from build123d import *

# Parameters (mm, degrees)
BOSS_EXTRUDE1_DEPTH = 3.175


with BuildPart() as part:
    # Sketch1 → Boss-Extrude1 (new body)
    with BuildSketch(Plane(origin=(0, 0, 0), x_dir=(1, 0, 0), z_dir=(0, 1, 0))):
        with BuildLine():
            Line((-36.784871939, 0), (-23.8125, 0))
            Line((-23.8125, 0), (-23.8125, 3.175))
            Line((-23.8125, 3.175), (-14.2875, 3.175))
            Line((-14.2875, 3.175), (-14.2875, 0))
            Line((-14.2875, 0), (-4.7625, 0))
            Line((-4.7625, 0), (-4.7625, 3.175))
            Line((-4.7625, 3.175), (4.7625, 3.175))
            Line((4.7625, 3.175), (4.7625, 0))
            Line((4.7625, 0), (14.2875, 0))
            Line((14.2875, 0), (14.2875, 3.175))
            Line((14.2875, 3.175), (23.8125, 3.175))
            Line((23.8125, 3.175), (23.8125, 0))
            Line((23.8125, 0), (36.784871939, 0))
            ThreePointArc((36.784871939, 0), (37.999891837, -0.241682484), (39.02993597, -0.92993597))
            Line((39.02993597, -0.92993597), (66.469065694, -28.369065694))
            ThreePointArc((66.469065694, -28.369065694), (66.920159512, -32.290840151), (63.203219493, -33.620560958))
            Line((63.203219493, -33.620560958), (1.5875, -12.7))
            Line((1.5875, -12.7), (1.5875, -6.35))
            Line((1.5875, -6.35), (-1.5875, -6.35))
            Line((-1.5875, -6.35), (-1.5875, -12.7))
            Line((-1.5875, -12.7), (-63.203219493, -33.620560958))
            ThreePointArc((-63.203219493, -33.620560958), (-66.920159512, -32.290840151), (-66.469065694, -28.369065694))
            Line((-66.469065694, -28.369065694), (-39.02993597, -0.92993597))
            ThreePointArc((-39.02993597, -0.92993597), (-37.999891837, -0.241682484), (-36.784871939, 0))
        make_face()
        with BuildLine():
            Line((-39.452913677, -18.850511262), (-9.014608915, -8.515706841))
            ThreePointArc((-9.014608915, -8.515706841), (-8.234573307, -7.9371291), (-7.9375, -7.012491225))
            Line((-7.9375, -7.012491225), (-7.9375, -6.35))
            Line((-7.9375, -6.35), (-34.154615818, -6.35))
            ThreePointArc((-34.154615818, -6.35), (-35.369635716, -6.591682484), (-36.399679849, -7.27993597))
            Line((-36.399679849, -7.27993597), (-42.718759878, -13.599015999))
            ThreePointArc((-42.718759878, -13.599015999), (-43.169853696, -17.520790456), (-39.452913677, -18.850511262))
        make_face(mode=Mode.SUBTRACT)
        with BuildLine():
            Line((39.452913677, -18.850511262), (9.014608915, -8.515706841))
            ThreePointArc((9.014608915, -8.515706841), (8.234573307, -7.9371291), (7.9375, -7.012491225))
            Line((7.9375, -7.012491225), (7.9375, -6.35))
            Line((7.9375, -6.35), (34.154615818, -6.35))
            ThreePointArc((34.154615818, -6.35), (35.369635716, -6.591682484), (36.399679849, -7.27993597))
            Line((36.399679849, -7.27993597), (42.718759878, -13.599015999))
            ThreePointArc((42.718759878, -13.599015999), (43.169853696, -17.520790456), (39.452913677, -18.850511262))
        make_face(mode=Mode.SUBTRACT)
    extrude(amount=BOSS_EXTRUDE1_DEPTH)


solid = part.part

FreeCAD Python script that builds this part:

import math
import FreeCAD as App
import Part
import Sketcher
Q = App.Units.Quantity

doc = App.newDocument("Part")
body = doc.addObject("PartDesign::Body", "Body")

# Sketch on XZ plane
sketch1 = doc.addObject("Sketcher::SketchObject", "Sketch")
body.addObject(sketch1)
sketch1.AttachmentSupport = (doc.XZ_Plane, [""])
sketch1.MapMode = "FlatFace"
sketch1.addGeometry([
    Part.LineSegment(App.Vector(-23.8, 0, 0), App.Vector(-36.8, 0, 0)),  # 0
    Part.ArcOfCircle(Part.Circle(App.Vector(-36.8, 3.2, 0), App.Vector(0, 0, 1), 3.2), math.radians(-135), math.radians(-90)),  # 1
    Part.LineSegment(App.Vector(-39, 0.9, 0), App.Vector(-66.5, 28.4, 0)),  # 2
    Part.ArcOfCircle(Part.Circle(App.Vector(-64.2, 30.6, 0), App.Vector(0, 0, 1), 3.2), math.radians(71), math.radians(225)),  # 3
    Part.LineSegment(App.Vector(-63.2, 33.6, 0), App.Vector(-1.6, 12.7, 0)),  # 4
    Part.LineSegment(App.Vector(-1.6, 12.7, 0), App.Vector(-1.6, 6.3, 0)),  # 5
    Part.LineSegment(App.Vector(-1.6, 6.3, 0), App.Vector(1.6, 6.3, 0)),  # 6
    Part.LineSegment(App.Vector(1.6, 6.3, 0), App.Vector(1.6, 12.7, 0)),  # 7
    Part.LineSegment(App.Vector(1.6, 12.7, 0), App.Vector(63.2, 33.6, 0)),  # 8
    Part.ArcOfCircle(Part.Circle(App.Vector(64.2, 30.6, 0), App.Vector(0, 0, 1), 3.2), math.radians(-45), math.radians(109)),  # 9
    Part.LineSegment(App.Vector(66.5, 28.4, 0), App.Vector(39, 0.9, 0)),  # 10
    Part.ArcOfCircle(Part.Circle(App.Vector(36.8, 3.2, 0), App.Vector(0, 0, 1), 3.2), math.radians(-90), math.radians(-45)),  # 11
    Part.LineSegment(App.Vector(36.8, 0, 0), App.Vector(23.8, 0, 0)),  # 12
    Part.LineSegment(App.Vector(23.8, 0, 0), App.Vector(23.8, -3.2, 0)),  # 13
    Part.LineSegment(App.Vector(23.8, -3.2, 0), App.Vector(14.3, -3.2, 0)),  # 14
    Part.LineSegment(App.Vector(14.3, -3.2, 0), App.Vector(14.3, 0, 0)),  # 15
    Part.LineSegment(App.Vector(14.3, 0, 0), App.Vector(4.8, 0, 0)),  # 16
    Part.LineSegment(App.Vector(4.8, 0, 0), App.Vector(4.8, -3.2, 0)),  # 17
    Part.LineSegment(App.Vector(4.8, -3.2, 0), App.Vector(-4.8, -3.2, 0)),  # 18
    Part.LineSegment(App.Vector(-4.8, -3.2, 0), App.Vector(-4.8, 0, 0)),  # 19
    Part.LineSegment(App.Vector(-4.8, 0, 0), App.Vector(-14.3, 0, 0)),  # 20
    Part.LineSegment(App.Vector(-14.3, 0, 0), App.Vector(-14.3, -3.2, 0)),  # 21
    Part.LineSegment(App.Vector(-14.3, -3.2, 0), App.Vector(-23.8, -3.2, 0)),  # 22
    Part.LineSegment(App.Vector(-23.8, -3.2, 0), App.Vector(-23.8, 0, 0)),  # 23
    Part.LineSegment(App.Vector(39.5, 18.9, 0), App.Vector(9, 8.5, 0)),  # 24
    Part.ArcOfCircle(Part.Circle(App.Vector(9.5, 7, 0), App.Vector(0, 0, 1), 1.6), math.radians(109), math.radians(180)),  # 25
    Part.LineSegment(App.Vector(7.9, 7, 0), App.Vector(7.9, 6.3, 0)),  # 26
    Part.LineSegment(App.Vector(7.9, 6.3, 0), App.Vector(34.2, 6.3, 0)),  # 27
    Part.ArcOfCircle(Part.Circle(App.Vector(34.2, 9.5, 0), App.Vector(0, 0, 1), 3.2), math.radians(-90), math.radians(-45)),  # 28
    Part.LineSegment(App.Vector(36.4, 7.3, 0), App.Vector(42.7, 13.6, 0)),  # 29
    Part.ArcOfCircle(Part.Circle(App.Vector(40.5, 15.8, 0), App.Vector(0, 0, 1), 3.2), math.radians(-45), math.radians(109)),  # 30
    Part.ArcOfCircle(Part.Circle(App.Vector(-40.5, 15.8, 0), App.Vector(0, 0, 1), 3.2), math.radians(71), math.radians(225)),  # 31
    Part.LineSegment(App.Vector(-42.7, 13.6, 0), App.Vector(-36.4, 7.3, 0)),  # 32
    Part.ArcOfCircle(Part.Circle(App.Vector(-34.2, 9.5, 0), App.Vector(0, 0, 1), 3.2), math.radians(-135), math.radians(-90)),  # 33
    Part.LineSegment(App.Vector(-34.2, 6.3, 0), App.Vector(-7.9, 6.3, 0)),  # 34
    Part.LineSegment(App.Vector(-7.9, 6.3, 0), App.Vector(-7.9, 7, 0)),  # 35
    Part.ArcOfCircle(Part.Circle(App.Vector(-9.5, 7, 0), App.Vector(0, 0, 1), 1.6), math.radians(0), math.radians(71)),  # 36
    Part.LineSegment(App.Vector(-9, 8.5, 0), App.Vector(-39.5, 18.9, 0)),  # 37
], False)
sketch1.addConstraint([
    Sketcher.Constraint("Tangent", 0, 2, 1, 2),
    Sketcher.Constraint("Tangent", 1, 1, 2, 1),
    Sketcher.Constraint("Tangent", 2, 2, 3, 2),
    Sketcher.Constraint("Tangent", 3, 1, 4, 1),
    Sketcher.Constraint("Coincident", 4, 2, 5, 1),
    Sketcher.Constraint("Coincident", 5, 2, 6, 1),
    Sketcher.Constraint("Coincident", 6, 2, 7, 1),
    Sketcher.Constraint("Coincident", 7, 2, 8, 1),
    Sketcher.Constraint("Tangent", 8, 2, 9, 2),
    Sketcher.Constraint("Tangent", 9, 1, 10, 1),
    Sketcher.Constraint("Tangent", 10, 2, 11, 2),
    Sketcher.Constraint("Tangent", 11, 1, 12, 1),
    Sketcher.Constraint("Coincident", 12, 2, 13, 1),
    Sketcher.Constraint("Coincident", 13, 2, 14, 1),
    Sketcher.Constraint("Coincident", 14, 2, 15, 1),
    Sketcher.Constraint("Coincident", 15, 2, 16, 1),
    Sketcher.Constraint("Coincident", 16, 2, 17, 1),
    Sketcher.Constraint("Coincident", 17, 2, 18, 1),
    Sketcher.Constraint("Coincident", 18, 2, 19, 1),
    Sketcher.Constraint("Coincident", 19, 2, 20, 1),
    Sketcher.Constraint("Coincident", 20, 2, 21, 1),
    Sketcher.Constraint("Coincident", 21, 2, 22, 1),
    Sketcher.Constraint("Coincident", 22, 2, 23, 1),
    Sketcher.Constraint("Coincident", 23, 2, 0, 1),
    Sketcher.Constraint("Tangent", 24, 2, 25, 1),
    Sketcher.Constraint("Tangent", 25, 2, 26, 1),
    Sketcher.Constraint("Coincident", 26, 2, 27, 1),
    Sketcher.Constraint("Tangent", 27, 2, 28, 1),
    Sketcher.Constraint("Tangent", 28, 2, 29, 1),
    Sketcher.Constraint("Tangent", 29, 2, 30, 1),
    Sketcher.Constraint("Tangent", 30, 2, 24, 1),
    Sketcher.Constraint("Tangent", 31, 2, 32, 1),
    Sketcher.Constraint("Tangent", 32, 2, 33, 1),
    Sketcher.Constraint("Tangent", 33, 2, 34, 1),
    Sketcher.Constraint("Coincident", 34, 2, 35, 1),
    Sketcher.Constraint("Tangent", 35, 2, 36, 1),
    Sketcher.Constraint("Tangent", 36, 2, 37, 1),
    Sketcher.Constraint("Tangent", 37, 2, 31, 1),
    Sketcher.Constraint("Horizontal", 0),
    Sketcher.Constraint("Vertical", 5),
    Sketcher.Constraint("Horizontal", 6),
    Sketcher.Constraint("Vertical", 7),
    Sketcher.Constraint("Horizontal", 12),
    Sketcher.Constraint("Vertical", 13),
    Sketcher.Constraint("Horizontal", 14),
    Sketcher.Constraint("Vertical", 15),
    Sketcher.Constraint("Horizontal", 16),
    Sketcher.Constraint("Vertical", 17),
    Sketcher.Constraint("Horizontal", 18),
    Sketcher.Constraint("Vertical", 19),
    Sketcher.Constraint("Horizontal", 20),
    Sketcher.Constraint("Vertical", 21),
    Sketcher.Constraint("Horizontal", 22),
    Sketcher.Constraint("Vertical", 23),
    Sketcher.Constraint("Vertical", 26),
    Sketcher.Constraint("Horizontal", 27),
    Sketcher.Constraint("Horizontal", 34),
    Sketcher.Constraint("Vertical", 35),
    Sketcher.Constraint("Equal", 1, 3),
    Sketcher.Constraint("Equal", 3, 9),
    Sketcher.Constraint("Equal", 9, 11),
    Sketcher.Constraint("Equal", 11, 28),
    Sketcher.Constraint("Equal", 28, 30),
    Sketcher.Constraint("Equal", 30, 31),
    Sketcher.Constraint("Equal", 31, 33),
    Sketcher.Constraint("Equal", 25, 36),
    Sketcher.Constraint("Symmetric", 0, 2, 11, 1, -1, 1),
    Sketcher.Constraint("Symmetric", 16, 2, 19, 2, -1, 1),
    Sketcher.Constraint("Symmetric", 3, 3, 9, 3, -2),
    Sketcher.Constraint("Symmetric", 30, 3, 31, 3, -2),
    Sketcher.Constraint("Symmetric", 28, 3, 33, 3, -2),
    Sketcher.Constraint("Symmetric", 25, 3, 36, 3, -2),
    Sketcher.Constraint("Symmetric", 4, 2, 7, 2, -2),
    Sketcher.Constraint("Symmetric", 15, 2, 20, 2, -2),
    Sketcher.Constraint("Symmetric", 13, 2, 22, 2, -2),
    Sketcher.Constraint("PointOnObject", 0, 2, -1),
    Sketcher.Constraint("Perpendicular", 2, 10),
    Sketcher.Constraint("Parallel", 8, 24),
    Sketcher.Constraint("Parallel", 10, 29),
    Sketcher.Constraint("Horizontal", 14, 2, 17, 2),
    Sketcher.Constraint("Horizontal", 6, 2, 26, 2),
    Sketcher.Constraint("Equal", 14, 16),
    Sketcher.Constraint("Equal", 16, 18),
    Sketcher.Constraint("Equal", 6, 13),
    Sketcher.Constraint("Radius", 1, Q("0.125 in")),
    Sketcher.Constraint("Radius", 25, Q("0.0625 in")),
    Sketcher.Constraint("DistanceY", 5, 2, 5, 1, Q("0.25 in")),
    Sketcher.Constraint("DistanceY", -1, 1, 4, 2, Q("0.5 in")),
    Sketcher.Constraint("DistanceY", 13, 2, 28, 3, Q("0.5 in")),
    Sketcher.Constraint("DistanceX", 6, 2, 14, 2, Q("0.5 in")),
    Sketcher.Constraint("DistanceX", 36, 3, 25, 3, Q("0.75 in")),
    Sketcher.Constraint("DistanceX", 0, 2, 0, 1, 12.972372),
    Sketcher.Constraint("DistanceY", 26, 2, 26, 1, 0.662491),
    Sketcher.Constraint("DistanceX", 3, 3, -1, 1, 64.224002),
    Sketcher.Constraint("Distance", 24, 32.144962),
])
pad1 = doc.addObject("PartDesign::Pad", "Pad")
body.addObject(pad1)
pad1.Profile = sketch1
pad1.Length = Q("0.125 in")
pad1.Reversed = True

doc.recompute()
